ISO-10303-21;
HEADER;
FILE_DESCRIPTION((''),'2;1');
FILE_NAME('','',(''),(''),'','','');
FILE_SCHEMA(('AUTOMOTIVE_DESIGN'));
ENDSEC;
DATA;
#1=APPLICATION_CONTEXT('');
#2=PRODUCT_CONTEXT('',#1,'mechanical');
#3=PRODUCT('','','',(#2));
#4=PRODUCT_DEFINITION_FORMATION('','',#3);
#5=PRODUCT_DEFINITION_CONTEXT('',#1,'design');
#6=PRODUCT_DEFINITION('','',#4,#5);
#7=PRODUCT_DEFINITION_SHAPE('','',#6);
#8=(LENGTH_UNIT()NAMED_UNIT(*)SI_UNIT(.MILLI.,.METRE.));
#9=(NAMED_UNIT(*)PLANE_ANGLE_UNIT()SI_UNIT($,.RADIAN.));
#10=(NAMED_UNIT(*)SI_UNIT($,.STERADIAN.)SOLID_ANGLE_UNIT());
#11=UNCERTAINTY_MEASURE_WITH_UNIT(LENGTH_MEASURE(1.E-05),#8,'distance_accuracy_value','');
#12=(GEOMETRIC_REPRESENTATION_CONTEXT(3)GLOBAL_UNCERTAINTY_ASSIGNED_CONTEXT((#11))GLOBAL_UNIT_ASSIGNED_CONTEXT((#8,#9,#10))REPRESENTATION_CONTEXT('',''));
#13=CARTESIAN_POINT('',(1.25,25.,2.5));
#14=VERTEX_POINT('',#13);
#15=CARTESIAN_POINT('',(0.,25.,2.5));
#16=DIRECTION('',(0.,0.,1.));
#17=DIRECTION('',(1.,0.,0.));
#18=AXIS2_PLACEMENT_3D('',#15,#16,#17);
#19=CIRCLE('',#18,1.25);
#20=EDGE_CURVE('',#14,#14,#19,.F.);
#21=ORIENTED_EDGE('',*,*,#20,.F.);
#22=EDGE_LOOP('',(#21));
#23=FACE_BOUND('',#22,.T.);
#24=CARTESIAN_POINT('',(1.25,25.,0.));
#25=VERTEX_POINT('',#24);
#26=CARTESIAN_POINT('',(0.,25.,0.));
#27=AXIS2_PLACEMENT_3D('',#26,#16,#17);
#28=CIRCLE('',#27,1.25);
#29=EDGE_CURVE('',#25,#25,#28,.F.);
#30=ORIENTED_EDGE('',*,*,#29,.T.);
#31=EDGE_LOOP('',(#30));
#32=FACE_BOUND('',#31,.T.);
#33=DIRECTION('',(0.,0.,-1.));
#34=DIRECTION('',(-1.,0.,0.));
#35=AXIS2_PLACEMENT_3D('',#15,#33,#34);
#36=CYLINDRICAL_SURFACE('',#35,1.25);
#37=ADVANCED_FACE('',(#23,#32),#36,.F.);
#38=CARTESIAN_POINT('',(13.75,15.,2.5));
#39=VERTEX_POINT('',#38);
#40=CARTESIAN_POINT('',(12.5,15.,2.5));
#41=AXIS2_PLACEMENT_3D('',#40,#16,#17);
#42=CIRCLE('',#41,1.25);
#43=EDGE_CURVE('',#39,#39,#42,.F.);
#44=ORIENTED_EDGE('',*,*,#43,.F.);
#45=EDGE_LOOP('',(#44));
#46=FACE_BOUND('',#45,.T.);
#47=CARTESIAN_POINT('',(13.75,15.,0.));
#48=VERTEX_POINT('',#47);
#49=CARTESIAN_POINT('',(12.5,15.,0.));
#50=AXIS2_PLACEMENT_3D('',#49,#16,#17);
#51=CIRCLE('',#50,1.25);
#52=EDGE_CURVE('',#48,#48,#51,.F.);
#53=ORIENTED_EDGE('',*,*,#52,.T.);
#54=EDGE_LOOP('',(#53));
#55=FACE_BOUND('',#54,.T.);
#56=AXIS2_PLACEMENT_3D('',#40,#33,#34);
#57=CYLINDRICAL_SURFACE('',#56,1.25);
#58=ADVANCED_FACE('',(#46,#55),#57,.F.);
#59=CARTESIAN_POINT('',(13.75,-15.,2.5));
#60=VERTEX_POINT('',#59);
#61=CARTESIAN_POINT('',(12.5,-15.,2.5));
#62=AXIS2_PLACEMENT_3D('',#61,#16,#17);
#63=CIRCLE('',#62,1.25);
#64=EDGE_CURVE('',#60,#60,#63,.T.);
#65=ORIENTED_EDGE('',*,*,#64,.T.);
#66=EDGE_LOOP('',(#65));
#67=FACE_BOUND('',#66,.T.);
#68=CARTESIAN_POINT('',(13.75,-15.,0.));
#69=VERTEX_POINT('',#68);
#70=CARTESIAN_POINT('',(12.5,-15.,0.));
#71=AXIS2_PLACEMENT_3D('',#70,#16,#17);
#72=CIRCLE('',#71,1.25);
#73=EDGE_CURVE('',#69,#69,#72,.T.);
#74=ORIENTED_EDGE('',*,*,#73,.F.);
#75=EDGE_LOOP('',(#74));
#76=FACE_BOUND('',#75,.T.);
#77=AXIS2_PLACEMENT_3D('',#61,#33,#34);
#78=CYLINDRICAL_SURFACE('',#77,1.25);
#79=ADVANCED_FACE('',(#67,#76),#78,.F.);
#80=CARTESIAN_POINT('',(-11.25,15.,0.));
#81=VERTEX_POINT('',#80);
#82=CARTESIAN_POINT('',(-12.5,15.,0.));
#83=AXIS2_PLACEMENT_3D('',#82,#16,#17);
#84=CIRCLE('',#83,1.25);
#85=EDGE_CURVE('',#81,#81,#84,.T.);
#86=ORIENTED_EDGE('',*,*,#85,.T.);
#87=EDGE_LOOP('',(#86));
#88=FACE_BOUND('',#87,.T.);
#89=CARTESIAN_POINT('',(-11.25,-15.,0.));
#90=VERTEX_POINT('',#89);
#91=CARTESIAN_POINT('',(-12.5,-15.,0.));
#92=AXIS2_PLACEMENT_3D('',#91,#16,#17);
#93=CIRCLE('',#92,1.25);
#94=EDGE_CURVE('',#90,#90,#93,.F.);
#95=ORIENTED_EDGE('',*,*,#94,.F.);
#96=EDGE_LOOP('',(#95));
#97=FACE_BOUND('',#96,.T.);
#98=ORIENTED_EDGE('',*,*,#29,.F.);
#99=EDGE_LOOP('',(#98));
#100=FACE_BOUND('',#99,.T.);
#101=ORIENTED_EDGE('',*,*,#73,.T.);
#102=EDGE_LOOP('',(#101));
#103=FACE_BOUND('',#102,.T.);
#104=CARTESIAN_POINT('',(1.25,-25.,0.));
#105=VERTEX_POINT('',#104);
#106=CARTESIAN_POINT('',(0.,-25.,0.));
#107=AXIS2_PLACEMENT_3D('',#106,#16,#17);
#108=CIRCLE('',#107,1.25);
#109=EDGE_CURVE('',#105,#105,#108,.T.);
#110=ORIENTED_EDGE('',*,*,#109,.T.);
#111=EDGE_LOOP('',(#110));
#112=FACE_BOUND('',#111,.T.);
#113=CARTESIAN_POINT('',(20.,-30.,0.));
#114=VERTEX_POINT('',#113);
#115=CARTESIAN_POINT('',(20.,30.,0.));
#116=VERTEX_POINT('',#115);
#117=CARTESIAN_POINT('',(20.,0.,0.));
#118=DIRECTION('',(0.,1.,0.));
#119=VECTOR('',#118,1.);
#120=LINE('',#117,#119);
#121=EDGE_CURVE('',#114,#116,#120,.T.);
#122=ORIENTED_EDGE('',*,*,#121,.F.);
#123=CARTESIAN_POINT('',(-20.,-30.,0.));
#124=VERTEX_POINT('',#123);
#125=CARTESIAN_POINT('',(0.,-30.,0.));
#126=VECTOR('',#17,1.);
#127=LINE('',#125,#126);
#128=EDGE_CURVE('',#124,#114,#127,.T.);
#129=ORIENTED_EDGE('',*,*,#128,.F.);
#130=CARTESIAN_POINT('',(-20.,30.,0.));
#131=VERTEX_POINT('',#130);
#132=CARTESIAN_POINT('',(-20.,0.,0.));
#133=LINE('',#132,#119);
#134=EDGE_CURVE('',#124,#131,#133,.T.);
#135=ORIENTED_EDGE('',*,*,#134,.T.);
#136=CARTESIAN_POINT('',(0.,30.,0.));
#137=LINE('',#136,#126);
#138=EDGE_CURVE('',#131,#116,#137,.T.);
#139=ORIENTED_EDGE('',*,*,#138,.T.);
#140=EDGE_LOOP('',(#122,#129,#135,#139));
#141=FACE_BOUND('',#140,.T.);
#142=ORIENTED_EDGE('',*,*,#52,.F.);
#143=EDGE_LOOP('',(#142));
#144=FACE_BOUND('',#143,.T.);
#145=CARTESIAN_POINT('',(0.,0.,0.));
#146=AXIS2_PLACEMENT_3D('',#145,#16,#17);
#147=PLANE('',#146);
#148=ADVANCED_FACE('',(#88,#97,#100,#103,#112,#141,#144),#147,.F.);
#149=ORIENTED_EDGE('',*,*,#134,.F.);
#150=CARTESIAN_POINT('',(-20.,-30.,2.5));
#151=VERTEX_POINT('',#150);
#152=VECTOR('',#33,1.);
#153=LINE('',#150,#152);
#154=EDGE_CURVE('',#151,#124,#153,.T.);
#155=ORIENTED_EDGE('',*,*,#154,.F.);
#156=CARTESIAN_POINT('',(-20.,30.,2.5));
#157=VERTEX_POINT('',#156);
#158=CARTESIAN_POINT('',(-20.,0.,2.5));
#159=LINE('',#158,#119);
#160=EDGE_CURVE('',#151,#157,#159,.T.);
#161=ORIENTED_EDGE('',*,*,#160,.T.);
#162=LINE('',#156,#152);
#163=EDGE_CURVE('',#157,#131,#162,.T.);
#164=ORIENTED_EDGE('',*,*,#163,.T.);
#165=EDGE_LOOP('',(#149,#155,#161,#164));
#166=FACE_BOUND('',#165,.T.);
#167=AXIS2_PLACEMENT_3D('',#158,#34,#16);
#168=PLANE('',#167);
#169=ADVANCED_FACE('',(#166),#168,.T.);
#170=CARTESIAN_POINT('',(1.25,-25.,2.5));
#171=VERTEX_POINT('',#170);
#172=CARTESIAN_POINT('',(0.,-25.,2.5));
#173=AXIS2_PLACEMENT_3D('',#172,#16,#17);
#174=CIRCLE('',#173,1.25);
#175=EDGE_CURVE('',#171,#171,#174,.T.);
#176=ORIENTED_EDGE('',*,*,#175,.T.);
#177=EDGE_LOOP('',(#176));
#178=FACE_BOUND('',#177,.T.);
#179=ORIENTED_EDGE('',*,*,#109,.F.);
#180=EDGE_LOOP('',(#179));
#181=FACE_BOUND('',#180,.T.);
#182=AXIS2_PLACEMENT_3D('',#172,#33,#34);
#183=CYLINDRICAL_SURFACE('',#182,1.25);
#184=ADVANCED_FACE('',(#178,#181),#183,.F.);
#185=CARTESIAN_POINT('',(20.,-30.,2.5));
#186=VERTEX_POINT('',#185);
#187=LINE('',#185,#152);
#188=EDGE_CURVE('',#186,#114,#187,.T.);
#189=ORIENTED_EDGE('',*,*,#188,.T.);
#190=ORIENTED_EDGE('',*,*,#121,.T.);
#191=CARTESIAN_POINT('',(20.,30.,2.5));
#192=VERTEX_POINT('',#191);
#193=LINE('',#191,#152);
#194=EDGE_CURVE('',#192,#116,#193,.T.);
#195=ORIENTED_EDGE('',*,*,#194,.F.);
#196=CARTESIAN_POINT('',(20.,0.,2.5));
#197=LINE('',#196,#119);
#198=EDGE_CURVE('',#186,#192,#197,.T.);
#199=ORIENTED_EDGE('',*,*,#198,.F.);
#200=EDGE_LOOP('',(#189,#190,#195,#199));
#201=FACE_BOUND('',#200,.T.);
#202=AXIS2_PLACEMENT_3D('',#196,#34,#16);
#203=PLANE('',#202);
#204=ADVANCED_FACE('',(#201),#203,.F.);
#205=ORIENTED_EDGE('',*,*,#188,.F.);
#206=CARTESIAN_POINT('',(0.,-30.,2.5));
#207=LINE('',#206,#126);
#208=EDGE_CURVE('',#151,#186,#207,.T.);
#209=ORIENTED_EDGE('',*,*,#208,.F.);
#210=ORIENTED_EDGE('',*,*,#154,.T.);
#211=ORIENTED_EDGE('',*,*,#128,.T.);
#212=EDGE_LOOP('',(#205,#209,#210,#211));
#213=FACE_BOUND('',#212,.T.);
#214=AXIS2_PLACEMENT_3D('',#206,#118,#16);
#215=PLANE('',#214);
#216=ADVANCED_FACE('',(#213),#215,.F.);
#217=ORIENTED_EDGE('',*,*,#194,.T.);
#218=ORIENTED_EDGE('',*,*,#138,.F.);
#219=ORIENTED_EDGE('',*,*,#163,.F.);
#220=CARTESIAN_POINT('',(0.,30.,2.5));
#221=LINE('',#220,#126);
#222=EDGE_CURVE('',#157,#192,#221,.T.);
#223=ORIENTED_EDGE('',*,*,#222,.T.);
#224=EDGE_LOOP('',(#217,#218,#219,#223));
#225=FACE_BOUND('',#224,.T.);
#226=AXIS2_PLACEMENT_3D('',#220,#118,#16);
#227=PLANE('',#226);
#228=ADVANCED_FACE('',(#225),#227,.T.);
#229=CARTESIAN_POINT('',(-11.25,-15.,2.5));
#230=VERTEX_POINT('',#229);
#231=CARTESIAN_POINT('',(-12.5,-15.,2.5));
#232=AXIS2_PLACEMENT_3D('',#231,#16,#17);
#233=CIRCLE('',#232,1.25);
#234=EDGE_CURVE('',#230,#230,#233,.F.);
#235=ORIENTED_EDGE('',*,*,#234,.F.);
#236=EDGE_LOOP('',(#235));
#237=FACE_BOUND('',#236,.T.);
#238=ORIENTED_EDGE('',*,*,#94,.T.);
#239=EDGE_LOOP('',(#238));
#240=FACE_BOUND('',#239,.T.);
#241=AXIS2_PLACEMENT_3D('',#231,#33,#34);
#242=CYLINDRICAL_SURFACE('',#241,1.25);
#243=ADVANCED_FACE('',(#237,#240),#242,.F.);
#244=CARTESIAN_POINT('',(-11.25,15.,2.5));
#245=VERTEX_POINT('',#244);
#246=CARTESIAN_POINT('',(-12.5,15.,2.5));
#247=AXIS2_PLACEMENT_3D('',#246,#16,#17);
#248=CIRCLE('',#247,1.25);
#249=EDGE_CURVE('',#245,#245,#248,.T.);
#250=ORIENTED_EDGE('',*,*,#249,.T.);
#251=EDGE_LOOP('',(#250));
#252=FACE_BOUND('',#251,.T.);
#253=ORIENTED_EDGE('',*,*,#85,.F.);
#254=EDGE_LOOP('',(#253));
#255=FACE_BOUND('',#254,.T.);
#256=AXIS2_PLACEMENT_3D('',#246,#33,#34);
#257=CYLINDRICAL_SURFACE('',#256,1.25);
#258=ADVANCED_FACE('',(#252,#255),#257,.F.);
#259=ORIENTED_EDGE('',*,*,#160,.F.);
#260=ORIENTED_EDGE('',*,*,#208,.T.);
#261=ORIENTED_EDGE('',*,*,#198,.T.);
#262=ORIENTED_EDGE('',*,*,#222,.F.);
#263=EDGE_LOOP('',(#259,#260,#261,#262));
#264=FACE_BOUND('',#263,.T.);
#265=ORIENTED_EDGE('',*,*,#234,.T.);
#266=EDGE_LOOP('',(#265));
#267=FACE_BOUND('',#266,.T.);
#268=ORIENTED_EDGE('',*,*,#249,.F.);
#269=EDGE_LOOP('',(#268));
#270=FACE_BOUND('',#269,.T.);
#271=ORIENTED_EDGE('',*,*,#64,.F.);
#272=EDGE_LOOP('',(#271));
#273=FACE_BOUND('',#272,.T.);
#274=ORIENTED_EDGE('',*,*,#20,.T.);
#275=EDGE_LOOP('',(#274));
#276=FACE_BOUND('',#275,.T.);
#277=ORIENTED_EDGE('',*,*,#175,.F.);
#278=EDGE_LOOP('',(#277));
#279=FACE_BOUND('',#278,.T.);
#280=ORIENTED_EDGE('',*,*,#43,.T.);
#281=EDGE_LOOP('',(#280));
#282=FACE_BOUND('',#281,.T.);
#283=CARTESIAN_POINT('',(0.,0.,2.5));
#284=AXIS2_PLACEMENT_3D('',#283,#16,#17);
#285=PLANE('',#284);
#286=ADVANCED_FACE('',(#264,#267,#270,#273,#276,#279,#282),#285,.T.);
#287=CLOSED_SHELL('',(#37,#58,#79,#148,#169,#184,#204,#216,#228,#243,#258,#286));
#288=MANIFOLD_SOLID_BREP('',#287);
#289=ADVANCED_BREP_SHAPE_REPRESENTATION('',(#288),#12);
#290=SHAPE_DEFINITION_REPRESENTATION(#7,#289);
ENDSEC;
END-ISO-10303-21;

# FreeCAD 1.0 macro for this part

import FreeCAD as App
import Part
import Sketcher
Q = App.Units.Quantity

doc = App.newDocument("Part")
params = doc.addObject("Spreadsheet::Sheet", "Params")
for row, (alias, value) in enumerate([
    ("sketch1_diameter", "2.5 mm"),
    ("sketch1_width", "40 mm"),
    ("sketch1_height", "60 mm"),
    ("pad1_length", "2.5 mm"),
], start=1):
    params.set(f"A{row}", alias)
    params.set(f"B{row}", "=" + value)
    params.setAlias(f"B{row}", alias)

body = doc.addObject("PartDesign::Body", "Body")

sketch1 = body.newObject("Sketcher::SketchObject", "Sketch")
sketch1.AttachmentSupport = (doc.getObject("XY_Plane"), [""])
sketch1.MapMode = "FlatFace"
sketch1.addGeometry([
    Part.LineSegment(App.Vector(-20, 30, 0), App.Vector(-20, -30, 0)),
    Part.LineSegment(App.Vector(-20, -30, 0), App.Vector(20, -30, 0)),
    Part.LineSegment(App.Vector(20, -30, 0), App.Vector(20, 30, 0)),
    Part.LineSegment(App.Vector(20, 30, 0), App.Vector(-20, 30, 0)),
    Part.Circle(App.Vector(-12.5, -15, 0), App.Vector(0, 0, 1), 1.2),
    Part.Circle(App.Vector(0, -25, 0), App.Vector(0, 0, 1), 1.2),
    Part.Circle(App.Vector(12.5, -15, 0), App.Vector(0, 0, 1), 1.2),
    Part.Circle(App.Vector(-12.5, 15, 0), App.Vector(0, 0, 1), 1.2),
    Part.Circle(App.Vector(0, 25, 0), App.Vector(0, 0, 1), 1.2),
    Part.Circle(App.Vector(12.5, 15, 0), App.Vector(0, 0, 1), 1.2),
], False)
sketch1.addConstraint([
    Sketcher.Constraint("Coincident", 0, 2, 1, 1),
    Sketcher.Constraint("Coincident", 1, 2, 2, 1),
    Sketcher.Constraint("Coincident", 2, 2, 3, 1),
    Sketcher.Constraint("Coincident", 3, 2, 0, 1),
    Sketcher.Constraint("Vertical", 0),
    Sketcher.Constraint("Horizontal", 1),
    Sketcher.Constraint("Vertical", 2),
    Sketcher.Constraint("Horizontal", 3),
    Sketcher.Constraint("Equal", 4, 5),
    Sketcher.Constraint("Equal", 5, 6),
    Sketcher.Constraint("Equal", 6, 7),
    Sketcher.Constraint("Equal", 7, 8),
    Sketcher.Constraint("Equal", 8, 9),
    Sketcher.Constraint("Symmetric", 6, 3, 7, 3, -1, 1),
    Sketcher.Constraint("Symmetric", 5, 3, 8, 3, -1, 1),
    Sketcher.Constraint("Symmetric", 4, 3, 9, 3, -1, 1),
    Sketcher.Constraint("Symmetric", 0, 2, 2, 2, -1, 1),
    Sketcher.Constraint("Symmetric", 4, 3, 6, 3, -2),
    Sketcher.Constraint("PointOnObject", 5, 3, -2),
    Sketcher.Constraint("Diameter", 4, Q("2.5 mm")),
    Sketcher.Constraint("DistanceX", 1, 1, 1, 2, Q("40 mm")),
    Sketcher.Constraint("DistanceY", 0, 2, 0, 1, Q("60 mm")),
    Sketcher.Constraint("DistanceY", 4, 3, -1, 1, Q("15 mm")),
    Sketcher.Constraint("DistanceY", 5, 3, -1, 1, Q("25 mm")),
    Sketcher.Constraint("DistanceX", 4, 3, 6, 3, Q("25 mm")),
])
sketch1.setExpression("Constraints[19]", "Params.sketch1_diameter")
sketch1.setExpression("Constraints[20]", "Params.sketch1_width")
sketch1.setExpression("Constraints[21]", "Params.sketch1_height")
pad1 = body.newObject("PartDesign::Pad", "Pad")
pad1.Profile = sketch1
pad1.setExpression("Length", "Params.pad1_length")

doc.recompute()
